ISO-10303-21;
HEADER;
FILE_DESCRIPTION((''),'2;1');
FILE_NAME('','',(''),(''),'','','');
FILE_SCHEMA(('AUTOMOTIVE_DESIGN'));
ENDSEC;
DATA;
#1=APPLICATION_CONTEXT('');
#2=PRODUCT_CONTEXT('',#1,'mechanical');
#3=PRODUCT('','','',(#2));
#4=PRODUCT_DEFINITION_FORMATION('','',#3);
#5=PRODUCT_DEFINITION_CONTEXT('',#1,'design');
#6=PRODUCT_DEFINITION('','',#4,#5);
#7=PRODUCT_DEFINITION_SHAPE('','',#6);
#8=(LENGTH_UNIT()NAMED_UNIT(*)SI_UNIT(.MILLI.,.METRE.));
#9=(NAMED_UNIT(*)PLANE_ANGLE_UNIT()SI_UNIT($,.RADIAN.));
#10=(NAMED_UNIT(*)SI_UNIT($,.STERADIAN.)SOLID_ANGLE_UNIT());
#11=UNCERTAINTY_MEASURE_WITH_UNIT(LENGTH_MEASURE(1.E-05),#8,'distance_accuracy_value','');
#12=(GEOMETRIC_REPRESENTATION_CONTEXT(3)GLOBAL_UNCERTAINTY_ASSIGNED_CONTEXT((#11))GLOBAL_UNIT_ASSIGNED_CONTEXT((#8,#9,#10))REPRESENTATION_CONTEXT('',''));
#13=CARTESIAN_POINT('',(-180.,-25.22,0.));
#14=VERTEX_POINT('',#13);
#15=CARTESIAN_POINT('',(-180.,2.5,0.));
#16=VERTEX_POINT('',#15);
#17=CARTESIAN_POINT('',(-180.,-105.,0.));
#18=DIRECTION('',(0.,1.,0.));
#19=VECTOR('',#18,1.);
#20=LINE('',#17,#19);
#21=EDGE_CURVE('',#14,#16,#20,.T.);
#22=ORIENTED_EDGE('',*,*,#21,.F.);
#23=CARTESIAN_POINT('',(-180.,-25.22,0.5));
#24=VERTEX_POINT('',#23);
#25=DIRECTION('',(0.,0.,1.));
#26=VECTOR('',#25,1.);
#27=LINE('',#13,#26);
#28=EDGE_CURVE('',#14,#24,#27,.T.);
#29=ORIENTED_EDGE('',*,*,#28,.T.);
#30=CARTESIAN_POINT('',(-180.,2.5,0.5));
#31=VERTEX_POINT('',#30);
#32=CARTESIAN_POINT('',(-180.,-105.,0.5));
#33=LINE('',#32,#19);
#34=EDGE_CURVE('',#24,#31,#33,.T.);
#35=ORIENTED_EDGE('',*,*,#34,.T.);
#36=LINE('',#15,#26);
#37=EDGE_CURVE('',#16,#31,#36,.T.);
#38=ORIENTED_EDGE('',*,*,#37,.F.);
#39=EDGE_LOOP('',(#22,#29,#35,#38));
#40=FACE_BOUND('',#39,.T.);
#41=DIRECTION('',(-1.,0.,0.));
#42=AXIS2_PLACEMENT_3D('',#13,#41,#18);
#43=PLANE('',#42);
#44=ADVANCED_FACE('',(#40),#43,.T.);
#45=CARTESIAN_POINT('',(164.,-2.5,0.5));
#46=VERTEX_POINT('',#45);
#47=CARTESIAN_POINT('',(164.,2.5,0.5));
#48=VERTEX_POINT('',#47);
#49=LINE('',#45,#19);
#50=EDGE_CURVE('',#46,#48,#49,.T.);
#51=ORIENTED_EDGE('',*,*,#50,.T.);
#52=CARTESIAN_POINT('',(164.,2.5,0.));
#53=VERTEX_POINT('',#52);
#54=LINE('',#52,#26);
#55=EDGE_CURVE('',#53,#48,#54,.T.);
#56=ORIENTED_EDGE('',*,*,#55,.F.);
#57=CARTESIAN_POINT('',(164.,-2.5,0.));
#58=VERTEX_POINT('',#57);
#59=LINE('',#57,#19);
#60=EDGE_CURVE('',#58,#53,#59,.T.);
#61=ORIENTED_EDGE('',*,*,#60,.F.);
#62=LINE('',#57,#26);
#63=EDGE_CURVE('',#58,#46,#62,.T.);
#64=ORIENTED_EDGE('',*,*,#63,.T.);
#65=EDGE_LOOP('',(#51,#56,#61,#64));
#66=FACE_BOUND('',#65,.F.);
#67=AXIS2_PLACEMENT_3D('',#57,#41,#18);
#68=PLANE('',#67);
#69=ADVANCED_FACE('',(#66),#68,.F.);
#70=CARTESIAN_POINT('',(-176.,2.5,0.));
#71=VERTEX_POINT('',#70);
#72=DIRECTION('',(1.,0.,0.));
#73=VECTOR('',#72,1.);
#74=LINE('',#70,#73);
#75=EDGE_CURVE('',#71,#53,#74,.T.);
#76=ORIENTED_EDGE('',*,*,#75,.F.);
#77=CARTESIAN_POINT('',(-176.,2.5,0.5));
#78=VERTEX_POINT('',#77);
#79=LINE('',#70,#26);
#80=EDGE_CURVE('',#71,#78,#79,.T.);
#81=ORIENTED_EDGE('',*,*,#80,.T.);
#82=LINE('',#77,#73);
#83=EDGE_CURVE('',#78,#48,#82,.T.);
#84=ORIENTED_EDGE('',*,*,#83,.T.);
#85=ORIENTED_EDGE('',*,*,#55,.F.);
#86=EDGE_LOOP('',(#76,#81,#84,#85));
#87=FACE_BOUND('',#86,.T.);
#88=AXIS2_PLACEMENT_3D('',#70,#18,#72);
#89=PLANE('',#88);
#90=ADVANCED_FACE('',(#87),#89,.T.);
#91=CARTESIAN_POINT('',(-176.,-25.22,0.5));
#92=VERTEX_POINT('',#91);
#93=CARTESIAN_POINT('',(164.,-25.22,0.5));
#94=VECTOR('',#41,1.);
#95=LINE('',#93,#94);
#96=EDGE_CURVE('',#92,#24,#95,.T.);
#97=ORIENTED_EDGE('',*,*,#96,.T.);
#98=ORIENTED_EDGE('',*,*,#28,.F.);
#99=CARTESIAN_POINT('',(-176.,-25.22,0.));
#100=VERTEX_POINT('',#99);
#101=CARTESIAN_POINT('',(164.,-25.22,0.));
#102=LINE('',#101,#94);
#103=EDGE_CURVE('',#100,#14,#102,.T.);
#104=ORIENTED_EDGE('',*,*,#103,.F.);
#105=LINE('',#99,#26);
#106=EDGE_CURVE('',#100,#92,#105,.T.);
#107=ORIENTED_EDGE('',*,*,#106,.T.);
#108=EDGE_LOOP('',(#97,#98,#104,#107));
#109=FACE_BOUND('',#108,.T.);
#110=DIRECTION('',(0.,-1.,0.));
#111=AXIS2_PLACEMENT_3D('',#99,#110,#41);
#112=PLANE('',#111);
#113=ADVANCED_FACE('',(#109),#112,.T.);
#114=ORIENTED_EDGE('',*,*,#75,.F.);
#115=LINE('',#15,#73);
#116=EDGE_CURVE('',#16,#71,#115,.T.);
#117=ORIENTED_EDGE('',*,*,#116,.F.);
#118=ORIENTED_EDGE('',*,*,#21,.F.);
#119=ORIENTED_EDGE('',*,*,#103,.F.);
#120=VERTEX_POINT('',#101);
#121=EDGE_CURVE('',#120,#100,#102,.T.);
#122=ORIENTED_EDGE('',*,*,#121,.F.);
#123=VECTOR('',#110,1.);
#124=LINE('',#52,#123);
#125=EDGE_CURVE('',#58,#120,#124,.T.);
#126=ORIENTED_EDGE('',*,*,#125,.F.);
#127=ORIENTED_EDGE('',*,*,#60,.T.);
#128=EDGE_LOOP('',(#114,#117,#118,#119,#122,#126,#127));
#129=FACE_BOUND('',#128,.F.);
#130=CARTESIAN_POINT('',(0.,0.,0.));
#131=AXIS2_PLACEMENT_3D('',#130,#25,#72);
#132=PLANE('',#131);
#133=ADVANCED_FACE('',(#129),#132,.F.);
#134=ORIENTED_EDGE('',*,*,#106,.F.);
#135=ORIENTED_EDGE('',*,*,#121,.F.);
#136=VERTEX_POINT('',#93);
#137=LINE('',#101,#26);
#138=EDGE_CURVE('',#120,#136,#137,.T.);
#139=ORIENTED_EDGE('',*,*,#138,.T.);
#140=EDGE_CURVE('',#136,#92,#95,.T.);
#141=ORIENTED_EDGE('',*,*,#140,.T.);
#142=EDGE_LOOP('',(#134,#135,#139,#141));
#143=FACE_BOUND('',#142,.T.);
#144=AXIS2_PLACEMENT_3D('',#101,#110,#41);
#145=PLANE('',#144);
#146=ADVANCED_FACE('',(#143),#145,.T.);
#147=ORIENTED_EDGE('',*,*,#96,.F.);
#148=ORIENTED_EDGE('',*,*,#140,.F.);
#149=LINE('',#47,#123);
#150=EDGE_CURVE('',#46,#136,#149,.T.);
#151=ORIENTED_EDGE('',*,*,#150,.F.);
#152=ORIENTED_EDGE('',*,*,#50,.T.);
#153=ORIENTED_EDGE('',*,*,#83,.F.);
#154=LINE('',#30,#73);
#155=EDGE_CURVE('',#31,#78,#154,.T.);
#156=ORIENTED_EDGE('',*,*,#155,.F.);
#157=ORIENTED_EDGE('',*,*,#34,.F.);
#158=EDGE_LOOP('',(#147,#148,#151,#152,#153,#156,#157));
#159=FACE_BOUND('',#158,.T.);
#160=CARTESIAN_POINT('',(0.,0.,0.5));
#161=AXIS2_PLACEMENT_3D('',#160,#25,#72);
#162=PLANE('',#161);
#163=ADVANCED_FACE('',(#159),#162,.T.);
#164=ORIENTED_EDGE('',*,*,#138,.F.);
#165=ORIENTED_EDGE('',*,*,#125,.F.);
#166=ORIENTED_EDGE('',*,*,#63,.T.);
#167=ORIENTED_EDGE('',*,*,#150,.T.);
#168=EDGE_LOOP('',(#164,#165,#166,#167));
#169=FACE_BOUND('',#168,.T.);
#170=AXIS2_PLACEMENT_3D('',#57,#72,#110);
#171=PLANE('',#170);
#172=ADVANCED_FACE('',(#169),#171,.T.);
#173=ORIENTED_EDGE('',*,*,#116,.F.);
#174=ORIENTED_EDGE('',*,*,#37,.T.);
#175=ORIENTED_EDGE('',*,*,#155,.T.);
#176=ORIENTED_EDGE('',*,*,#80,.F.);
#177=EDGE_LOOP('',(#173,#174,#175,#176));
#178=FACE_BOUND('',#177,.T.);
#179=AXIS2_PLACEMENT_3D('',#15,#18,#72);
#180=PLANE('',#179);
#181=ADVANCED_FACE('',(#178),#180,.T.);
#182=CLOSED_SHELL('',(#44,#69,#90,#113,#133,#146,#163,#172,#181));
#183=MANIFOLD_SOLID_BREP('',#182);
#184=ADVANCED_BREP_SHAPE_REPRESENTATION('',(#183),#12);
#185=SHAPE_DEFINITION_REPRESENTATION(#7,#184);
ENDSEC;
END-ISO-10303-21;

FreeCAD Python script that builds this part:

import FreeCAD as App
import Part
import Sketcher

V = App.Vector

doc = App.newDocument("Part")
body = doc.addObject("PartDesign::Body", "Body")

# Sketch on XY plane
sketch1 = doc.addObject("Sketcher::SketchObject", "Sketch")
body.addObject(sketch1)
sketch1.AttachmentSupport = (doc.XY_Plane, [""])
sketch1.MapMode = "FlatFace"
sketch1.addGeometry(Part.LineSegment(V(164, 2, 0), V(-180, 2, 0)), False)
sketch1.addGeometry(Part.LineSegment(V(-180, 2, 0), V(-180, -25, 0)), False)
sketch1.addGeometry(Part.LineSegment(V(-180, -25, 0), V(164, -25, 0)), False)
sketch1.addGeometry(Part.LineSegment(V(164, -25, 0), V(164, 2, 0)), False)
sketch1.addConstraint(Sketcher.Constraint("Coincident", 0, 2, 1, 1))
sketch1.addConstraint(Sketcher.Constraint("Coincident", 1, 2, 2, 1))
sketch1.addConstraint(Sketcher.Constraint("Coincident", 2, 2, 3, 1))
sketch1.addConstraint(Sketcher.Constraint("Coincident", 3, 2, 0, 1))
sketch1.addConstraint(Sketcher.Constraint("Horizontal", 0))
sketch1.addConstraint(Sketcher.Constraint("Vertical", 1))
sketch1.addConstraint(Sketcher.Constraint("Horizontal", 2))
sketch1.addConstraint(Sketcher.Constraint("Vertical", 3))
sketch1.addConstraint(Sketcher.Constraint("DistanceX", 0, 2, 0, 1, 344.0))
sketch1.addConstraint(Sketcher.Constraint("DistanceX", 0, 2, -1, 1, 180.0))
sketch1.addConstraint(Sketcher.Constraint("DistanceY", 1, 2, 1, 1, 27.72))
sketch1.addConstraint(Sketcher.Constraint("DistanceY", -1, 1, 0, 2, 2.5))
pad1 = doc.addObject("PartDesign::Pad", "Pad")
body.addObject(pad1)
pad1.Profile = sketch1
pad1.Length = 0.5

doc.recompute()
